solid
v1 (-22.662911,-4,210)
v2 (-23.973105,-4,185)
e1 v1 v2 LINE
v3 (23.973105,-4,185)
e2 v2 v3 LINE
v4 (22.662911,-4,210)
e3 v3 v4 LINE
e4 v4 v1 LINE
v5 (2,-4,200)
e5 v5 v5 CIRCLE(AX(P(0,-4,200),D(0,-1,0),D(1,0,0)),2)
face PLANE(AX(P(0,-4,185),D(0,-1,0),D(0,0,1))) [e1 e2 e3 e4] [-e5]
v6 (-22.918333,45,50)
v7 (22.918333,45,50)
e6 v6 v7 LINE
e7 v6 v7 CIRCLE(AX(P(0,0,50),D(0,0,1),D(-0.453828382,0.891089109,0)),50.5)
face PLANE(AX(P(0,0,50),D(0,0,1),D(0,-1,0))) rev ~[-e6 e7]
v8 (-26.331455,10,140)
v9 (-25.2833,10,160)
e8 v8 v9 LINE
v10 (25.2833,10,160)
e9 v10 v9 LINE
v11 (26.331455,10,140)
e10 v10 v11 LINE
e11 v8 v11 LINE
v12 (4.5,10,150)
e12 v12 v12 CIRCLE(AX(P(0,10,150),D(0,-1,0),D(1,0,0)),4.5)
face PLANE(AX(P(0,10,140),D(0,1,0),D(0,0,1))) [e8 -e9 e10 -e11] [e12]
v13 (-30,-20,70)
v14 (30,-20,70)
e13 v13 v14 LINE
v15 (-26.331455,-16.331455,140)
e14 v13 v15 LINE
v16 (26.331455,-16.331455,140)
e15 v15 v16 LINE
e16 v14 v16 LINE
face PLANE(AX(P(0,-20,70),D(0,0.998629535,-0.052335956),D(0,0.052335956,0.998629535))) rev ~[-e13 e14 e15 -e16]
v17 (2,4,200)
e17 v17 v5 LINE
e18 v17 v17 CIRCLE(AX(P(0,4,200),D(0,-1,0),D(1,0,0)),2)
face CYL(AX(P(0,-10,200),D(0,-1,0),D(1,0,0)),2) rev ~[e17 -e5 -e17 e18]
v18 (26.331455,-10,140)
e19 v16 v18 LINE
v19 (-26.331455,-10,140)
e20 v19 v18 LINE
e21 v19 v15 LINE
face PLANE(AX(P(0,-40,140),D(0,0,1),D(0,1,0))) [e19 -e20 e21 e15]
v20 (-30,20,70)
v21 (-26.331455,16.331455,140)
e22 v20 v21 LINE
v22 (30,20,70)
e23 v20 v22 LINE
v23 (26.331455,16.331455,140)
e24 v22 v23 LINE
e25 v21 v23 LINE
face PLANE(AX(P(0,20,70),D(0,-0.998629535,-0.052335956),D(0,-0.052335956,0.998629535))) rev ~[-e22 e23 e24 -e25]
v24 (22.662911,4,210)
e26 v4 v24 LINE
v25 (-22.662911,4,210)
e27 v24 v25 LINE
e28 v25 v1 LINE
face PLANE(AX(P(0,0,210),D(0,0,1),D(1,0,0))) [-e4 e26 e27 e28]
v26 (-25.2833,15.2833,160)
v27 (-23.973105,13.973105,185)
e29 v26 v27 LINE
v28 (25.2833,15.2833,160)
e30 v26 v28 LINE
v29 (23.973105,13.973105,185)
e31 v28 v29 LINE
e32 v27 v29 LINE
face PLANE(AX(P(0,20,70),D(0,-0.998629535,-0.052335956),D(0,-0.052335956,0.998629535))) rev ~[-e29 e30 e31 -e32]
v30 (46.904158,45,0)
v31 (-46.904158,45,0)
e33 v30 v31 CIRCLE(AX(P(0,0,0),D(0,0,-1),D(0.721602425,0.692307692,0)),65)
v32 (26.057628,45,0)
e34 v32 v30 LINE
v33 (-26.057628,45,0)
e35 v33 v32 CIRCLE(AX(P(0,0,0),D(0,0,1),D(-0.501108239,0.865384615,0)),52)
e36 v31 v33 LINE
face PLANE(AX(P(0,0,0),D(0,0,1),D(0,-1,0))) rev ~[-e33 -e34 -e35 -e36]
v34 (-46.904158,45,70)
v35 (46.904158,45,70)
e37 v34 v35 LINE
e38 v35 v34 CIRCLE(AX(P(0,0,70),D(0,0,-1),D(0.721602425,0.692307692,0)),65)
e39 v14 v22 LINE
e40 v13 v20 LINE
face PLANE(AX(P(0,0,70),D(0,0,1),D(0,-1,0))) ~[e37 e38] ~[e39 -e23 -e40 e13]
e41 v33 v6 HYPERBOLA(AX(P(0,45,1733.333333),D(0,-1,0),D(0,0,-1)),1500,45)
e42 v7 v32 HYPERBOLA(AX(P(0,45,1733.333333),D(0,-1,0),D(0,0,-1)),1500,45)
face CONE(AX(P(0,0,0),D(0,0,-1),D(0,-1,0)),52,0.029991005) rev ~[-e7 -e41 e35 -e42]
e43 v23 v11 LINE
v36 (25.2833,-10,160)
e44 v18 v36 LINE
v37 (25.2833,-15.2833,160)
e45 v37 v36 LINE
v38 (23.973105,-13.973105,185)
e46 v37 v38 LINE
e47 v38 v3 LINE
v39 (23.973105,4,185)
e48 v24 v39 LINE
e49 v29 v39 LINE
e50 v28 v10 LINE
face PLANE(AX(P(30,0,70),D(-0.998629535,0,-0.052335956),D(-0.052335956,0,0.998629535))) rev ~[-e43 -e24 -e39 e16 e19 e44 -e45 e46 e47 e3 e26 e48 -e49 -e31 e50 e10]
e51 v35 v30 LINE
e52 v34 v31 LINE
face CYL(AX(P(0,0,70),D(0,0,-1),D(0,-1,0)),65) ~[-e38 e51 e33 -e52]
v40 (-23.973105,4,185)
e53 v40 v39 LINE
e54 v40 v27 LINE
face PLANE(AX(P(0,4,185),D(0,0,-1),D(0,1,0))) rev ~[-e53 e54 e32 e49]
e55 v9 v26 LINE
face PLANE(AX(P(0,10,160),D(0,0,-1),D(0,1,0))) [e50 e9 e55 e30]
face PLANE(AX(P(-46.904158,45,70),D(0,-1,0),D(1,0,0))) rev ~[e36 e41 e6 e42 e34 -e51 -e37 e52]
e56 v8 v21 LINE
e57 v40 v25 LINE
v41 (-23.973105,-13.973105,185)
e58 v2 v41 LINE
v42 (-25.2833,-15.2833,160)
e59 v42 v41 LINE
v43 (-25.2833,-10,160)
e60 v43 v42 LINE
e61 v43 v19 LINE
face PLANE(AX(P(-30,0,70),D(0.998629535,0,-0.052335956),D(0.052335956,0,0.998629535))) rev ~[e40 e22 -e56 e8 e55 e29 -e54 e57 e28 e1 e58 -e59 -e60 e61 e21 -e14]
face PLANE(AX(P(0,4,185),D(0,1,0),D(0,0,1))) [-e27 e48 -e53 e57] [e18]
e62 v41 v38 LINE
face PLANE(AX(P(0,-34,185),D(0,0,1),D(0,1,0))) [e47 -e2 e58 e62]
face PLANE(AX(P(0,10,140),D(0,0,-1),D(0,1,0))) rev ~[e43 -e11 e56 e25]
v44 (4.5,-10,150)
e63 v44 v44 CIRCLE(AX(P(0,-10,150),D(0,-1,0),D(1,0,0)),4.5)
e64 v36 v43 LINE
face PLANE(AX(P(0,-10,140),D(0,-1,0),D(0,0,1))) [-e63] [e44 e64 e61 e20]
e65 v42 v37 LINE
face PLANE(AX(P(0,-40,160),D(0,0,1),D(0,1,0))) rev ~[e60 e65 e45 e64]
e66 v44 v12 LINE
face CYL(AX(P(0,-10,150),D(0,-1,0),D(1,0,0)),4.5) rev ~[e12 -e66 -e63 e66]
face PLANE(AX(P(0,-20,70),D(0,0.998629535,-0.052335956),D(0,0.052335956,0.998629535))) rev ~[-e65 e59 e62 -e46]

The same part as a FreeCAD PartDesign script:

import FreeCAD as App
import Part
import Sketcher

V = App.Vector

doc = App.newDocument("Part")
body = doc.addObject("PartDesign::Body", "Body")

sketch1 = doc.addObject("Sketcher::SketchObject", "Sketch")
body.addObject(sketch1)
sketch1.AttachmentSupport = (doc.YZ_Plane, [""])
sketch1.MapMode = "FlatFace"
sketch1.addGeometry([
    Part.LineSegment(V(-65, 0, 0), V(-52, 0, 0)),
    Part.LineSegment(V(-52, 0, 0), V(-50, 50, 0)),
    Part.LineSegment(V(-50, 50, 0), V(0, 50, 0)),
    Part.LineSegment(V(0, 50, 0), V(0, 70, 0)),
    Part.LineSegment(V(0, 70, 0), V(-65, 70, 0)),
    Part.LineSegment(V(-65, 70, 0), V(-65, 0, 0)),
], False)
sketch1.addConstraint([
    Sketcher.Constraint("Coincident", 0, 2, 1, 1),
    Sketcher.Constraint("Coincident", 1, 2, 2, 1),
    Sketcher.Constraint("Coincident", 2, 2, 3, 1),
    Sketcher.Constraint("Coincident", 3, 2, 4, 1),
    Sketcher.Constraint("Coincident", 4, 2, 5, 1),
    Sketcher.Constraint("Coincident", 5, 2, 0, 1),
    Sketcher.Constraint("Horizontal", 0),
    Sketcher.Constraint("Horizontal", 2),
    Sketcher.Constraint("Vertical", 3),
    Sketcher.Constraint("Horizontal", 4),
    Sketcher.Constraint("Vertical", 5),
    Sketcher.Constraint("PointOnObject", 0, 2, -1),
    Sketcher.Constraint("PointOnObject", 2, 2, -2),
    Sketcher.Constraint("DistanceX", 0, 1, 0, 2, 13.0),
    Sketcher.Constraint("DistanceX", 4, 2, 4, 1, 65.0),
    Sketcher.Constraint("DistanceY", 3, 1, 3, 2, 20.0),
    Sketcher.Constraint("DistanceY", 5, 2, 5, 1, 70.0),
    Sketcher.Constraint("DistanceX", 2, 1, 2, 2, 50.5),
])
revolution = doc.addObject("PartDesign::Revolution", "Revolution")
body.addObject(revolution)
revolution.Profile = sketch1
revolution.ReferenceAxis = (sketch1, ["V_Axis"])
revolution.Angle = 360

sketch2 = doc.addObject("Sketcher::SketchObject", "Sketch001")
body.addObject(sketch2)
sketch2.AttachmentSupport = (doc.XY_Plane, [""])
sketch2.MapMode = "FlatFace"
sketch2.AttachmentOffset = App.Placement(V(0, 0, 70), App.Rotation())
sketch2.addGeometry([
    Part.LineSegment(V(-30, 20, 0), V(-30, -20, 0)),
    Part.LineSegment(V(-30, -20, 0), V(30, -20, 0)),
    Part.LineSegment(V(30, -20, 0), V(30, 20, 0)),
    Part.LineSegment(V(30, 20, 0), V(-30, 20, 0)),
], False)
sketch2.addConstraint([
    Sketcher.Constraint("Coincident", 0, 2, 1, 1),
    Sketcher.Constraint("Coincident", 1, 2, 2, 1),
    Sketcher.Constraint("Coincident", 2, 2, 3, 1),
    Sketcher.Constraint("Coincident", 3, 2, 0, 1),
    Sketcher.Constraint("Vertical", 0),
    Sketcher.Constraint("Horizontal", 1),
    Sketcher.Constraint("Vertical", 2),
    Sketcher.Constraint("Horizontal", 3),
    Sketcher.Constraint("Symmetric", 0, 2, 2, 2, -1, 1),
    Sketcher.Constraint("DistanceX", 1, 1, 1, 2, 60.0),
    Sketcher.Constraint("DistanceY", 0, 2, 0, 1, 40.0),
])
pad1 = doc.addObject("PartDesign::Pad", "Pad")
body.addObject(pad1)
pad1.Profile = sketch2
pad1.Length = 140
pad1.TaperAngle = -3

sketch3 = doc.addObject("Sketcher::SketchObject", "Sketch002")
body.addObject(sketch3)
sketch3.AttachmentSupport = (doc.YZ_Plane, [""])
sketch3.MapMode = "FlatFace"
sketch3.addGeometry([
    Part.LineSegment(V(-40, 160, 0), V(-40, 140, 0)),
    Part.LineSegment(V(-40, 140, 0), V(-10, 140, 0)),
    Part.LineSegment(V(-10, 140, 0), V(-10, 160, 0)),
    Part.LineSegment(V(-10, 160, 0), V(-40, 160, 0)),
    Part.LineSegment(V(10, 160, 0), V(10, 140, 0)),
    Part.LineSegment(V(10, 140, 0), V(40, 140, 0)),
    Part.LineSegment(V(40, 140, 0), V(40, 160, 0)),
    Part.LineSegment(V(40, 160, 0), V(10, 160, 0)),
], False)
sketch3.addConstraint([
    Sketcher.Constraint("Coincident", 0, 2, 1, 1),
    Sketcher.Constraint("Coincident", 1, 2, 2, 1),
    Sketcher.Constraint("Coincident", 2, 2, 3, 1),
    Sketcher.Constraint("Coincident", 3, 2, 0, 1),
    Sketcher.Constraint("Coincident", 4, 2, 5, 1),
    Sketcher.Constraint("Coincident", 5, 2, 6, 1),
    Sketcher.Constraint("Coincident", 6, 2, 7, 1),
    Sketcher.Constraint("Coincident", 7, 2, 4, 1),
    Sketcher.Constraint("Vertical", 0),
    Sketcher.Constraint("Horizontal", 1),
    Sketcher.Constraint("Vertical", 2),
    Sketcher.Constraint("Horizontal", 3),
    Sketcher.Constraint("Vertical", 4),
    Sketcher.Constraint("Horizontal", 5),
    Sketcher.Constraint("Vertical", 6),
    Sketcher.Constraint("Horizontal", 7),
    Sketcher.Constraint("Symmetric", 1, 2, 4, 2, -2),
    Sketcher.Constraint("Symmetric", 3, 2, 6, 2, -2),
    Sketcher.Constraint("DistanceX", 1, 1, 1, 2, 30.0),
    Sketcher.Constraint("DistanceY", 0, 2, 0, 1, 20.0),
    Sketcher.Constraint("DistanceX", 0, 2, -1, 1, 40.0),
    Sketcher.Constraint("DistanceY", -1, 1, 0, 2, 140.0),
])
pocket1 = doc.addObject("PartDesign::Pocket", "Pocket")
body.addObject(pocket1)
pocket1.Profile = sketch3
pocket1.Length = 300
pocket1.Midplane = True

sketch4 = doc.addObject("Sketcher::SketchObject", "Sketch003")
body.addObject(sketch4)
sketch4.AttachmentSupport = (doc.XZ_Plane, [""])
sketch4.MapMode = "FlatFace"
sketch4.AttachmentOffset = App.Placement(V(0, 0, 10), App.Rotation())
sketch4.addGeometry([
    Part.Circle(V(0, 150, 0), V(0, 0, 1), 4.5),
    Part.Circle(V(0, 200, 0), V(0, 0, 1), 2),
], False)
sketch4.addConstraint([
    Sketcher.Constraint("PointOnObject", 0, 3, -2),
    Sketcher.Constraint("PointOnObject", 1, 3, -2),
    Sketcher.Constraint("Diameter", 0, 9.0),
    Sketcher.Constraint("Diameter", 1, 4.0),
    Sketcher.Constraint("DistanceY", -1, 1, 0, 3, 150.0),
    Sketcher.Constraint("DistanceY", -1, 1, 1, 3, 200.0),
])
pocket2 = doc.addObject("PartDesign::Pocket", "Pocket001")
body.addObject(pocket2)
pocket2.Profile = sketch4
pocket2.Length = 300
pocket2.Midplane = True

sketch5 = doc.addObject("Sketcher::SketchObject", "Sketch004")
body.addObject(sketch5)
sketch5.AttachmentSupport = (doc.YZ_Plane, [""])
sketch5.MapMode = "FlatFace"
sketch5.addGeometry([
    Part.LineSegment(V(-34, 210, 0), V(-34, 185, 0)),
    Part.LineSegment(V(-34, 185, 0), V(-4, 185, 0)),
    Part.LineSegment(V(-4, 185, 0), V(-4, 210, 0)),
    Part.LineSegment(V(-4, 210, 0), V(-34, 210, 0)),
    Part.LineSegment(V(4, 210, 0), V(4, 185, 0)),
    Part.LineSegment(V(4, 185, 0), V(34, 185, 0)),
    Part.LineSegment(V(34, 185, 0), V(34, 210, 0)),
    Part.LineSegment(V(34, 210, 0), V(4, 210, 0)),
], False)
sketch5.addConstraint([
    Sketcher.Constraint("Coincident", 0, 2, 1, 1),
    Sketcher.Constraint("Coincident", 1, 2, 2, 1),
    Sketcher.Constraint("Coincident", 2, 2, 3, 1),
    Sketcher.Constraint("Coincident", 3, 2, 0, 1),
    Sketcher.Constraint("Coincident", 4, 2, 5, 1),
    Sketcher.Constraint("Coincident", 5, 2, 6, 1),
    Sketcher.Constraint("Coincident", 6, 2, 7, 1),
    Sketcher.Constraint("Coincident", 7, 2, 4, 1),
    Sketcher.Constraint("Vertical", 0),
    Sketcher.Constraint("Horizontal", 1),
    Sketcher.Constraint("Vertical", 2),
    Sketcher.Constraint("Horizontal", 3),
    Sketcher.Constraint("Vertical", 4),
    Sketcher.Constraint("Horizontal", 5),
    Sketcher.Constraint("Vertical", 6),
    Sketcher.Constraint("Horizontal", 7),
    Sketcher.Constraint("Symmetric", 1, 2, 4, 2, -2),
    Sketcher.Constraint("Symmetric", 3, 2, 6, 2, -2),
    Sketcher.Constraint("DistanceX", 1, 1, 1, 2, 30.0),
    Sketcher.Constraint("DistanceY", 0, 2, 0, 1, 25.0),
    Sketcher.Constraint("DistanceX", 0, 2, -1, 1, 34.0),
    Sketcher.Constraint("DistanceY", -1, 1, 0, 2, 185.0),
])
pocket3 = doc.addObject("PartDesign::Pocket", "Pocket002")
body.addObject(pocket3)
pocket3.Profile = sketch5
pocket3.Length = 300
pocket3.Midplane = True

sketch6 = doc.addObject("Sketcher::SketchObject", "Sketch005")
body.addObject(sketch6)
sketch6.AttachmentSupport = (doc.XY_Plane, [""])
sketch6.MapMode = "FlatFace"
sketch6.AttachmentOffset = App.Placement(V(0, 0, 70), App.Rotation())
sketch6.addGeometry([
    Part.LineSegment(V(-47, 65, 0), V(-47, 45, 0)),
    Part.LineSegment(V(-47, 45, 0), V(47, 45, 0)),
    Part.LineSegment(V(47, 45, 0), V(47, 65, 0)),
    Part.LineSegment(V(47, 65, 0), V(-47, 65, 0)),
], False)
sketch6.addConstraint([
    Sketcher.Constraint("Coincident", 0, 2, 1, 1),
    Sketcher.Constraint("Coincident", 1, 2, 2, 1),
    Sketcher.Constraint("Coincident", 2, 2, 3, 1),
    Sketcher.Constraint("Coincident", 3, 2, 0, 1),
    Sketcher.Constraint("Vertical", 0),
    Sketcher.Constraint("Horizontal", 1),
    Sketcher.Constraint("Vertical", 2),
    Sketcher.Constraint("Horizontal", 3),
    Sketcher.Constraint("DistanceY", 0, 2, 0, 1, 20.0),
    Sketcher.Constraint("DistanceY", -1, 1, 0, 2, 45.0),
    Sketcher.Constraint("DistanceX", 1, 1, 1, 2, 93.808315),
    Sketcher.Constraint("DistanceX", 0, 2, -1, 1, 46.904158),
])
pocket4 = doc.addObject("PartDesign::Pocket", "Pocket003")
body.addObject(pocket4)
pocket4.Profile = sketch6
pocket4.Type = "ThroughAll"

doc.recompute()
